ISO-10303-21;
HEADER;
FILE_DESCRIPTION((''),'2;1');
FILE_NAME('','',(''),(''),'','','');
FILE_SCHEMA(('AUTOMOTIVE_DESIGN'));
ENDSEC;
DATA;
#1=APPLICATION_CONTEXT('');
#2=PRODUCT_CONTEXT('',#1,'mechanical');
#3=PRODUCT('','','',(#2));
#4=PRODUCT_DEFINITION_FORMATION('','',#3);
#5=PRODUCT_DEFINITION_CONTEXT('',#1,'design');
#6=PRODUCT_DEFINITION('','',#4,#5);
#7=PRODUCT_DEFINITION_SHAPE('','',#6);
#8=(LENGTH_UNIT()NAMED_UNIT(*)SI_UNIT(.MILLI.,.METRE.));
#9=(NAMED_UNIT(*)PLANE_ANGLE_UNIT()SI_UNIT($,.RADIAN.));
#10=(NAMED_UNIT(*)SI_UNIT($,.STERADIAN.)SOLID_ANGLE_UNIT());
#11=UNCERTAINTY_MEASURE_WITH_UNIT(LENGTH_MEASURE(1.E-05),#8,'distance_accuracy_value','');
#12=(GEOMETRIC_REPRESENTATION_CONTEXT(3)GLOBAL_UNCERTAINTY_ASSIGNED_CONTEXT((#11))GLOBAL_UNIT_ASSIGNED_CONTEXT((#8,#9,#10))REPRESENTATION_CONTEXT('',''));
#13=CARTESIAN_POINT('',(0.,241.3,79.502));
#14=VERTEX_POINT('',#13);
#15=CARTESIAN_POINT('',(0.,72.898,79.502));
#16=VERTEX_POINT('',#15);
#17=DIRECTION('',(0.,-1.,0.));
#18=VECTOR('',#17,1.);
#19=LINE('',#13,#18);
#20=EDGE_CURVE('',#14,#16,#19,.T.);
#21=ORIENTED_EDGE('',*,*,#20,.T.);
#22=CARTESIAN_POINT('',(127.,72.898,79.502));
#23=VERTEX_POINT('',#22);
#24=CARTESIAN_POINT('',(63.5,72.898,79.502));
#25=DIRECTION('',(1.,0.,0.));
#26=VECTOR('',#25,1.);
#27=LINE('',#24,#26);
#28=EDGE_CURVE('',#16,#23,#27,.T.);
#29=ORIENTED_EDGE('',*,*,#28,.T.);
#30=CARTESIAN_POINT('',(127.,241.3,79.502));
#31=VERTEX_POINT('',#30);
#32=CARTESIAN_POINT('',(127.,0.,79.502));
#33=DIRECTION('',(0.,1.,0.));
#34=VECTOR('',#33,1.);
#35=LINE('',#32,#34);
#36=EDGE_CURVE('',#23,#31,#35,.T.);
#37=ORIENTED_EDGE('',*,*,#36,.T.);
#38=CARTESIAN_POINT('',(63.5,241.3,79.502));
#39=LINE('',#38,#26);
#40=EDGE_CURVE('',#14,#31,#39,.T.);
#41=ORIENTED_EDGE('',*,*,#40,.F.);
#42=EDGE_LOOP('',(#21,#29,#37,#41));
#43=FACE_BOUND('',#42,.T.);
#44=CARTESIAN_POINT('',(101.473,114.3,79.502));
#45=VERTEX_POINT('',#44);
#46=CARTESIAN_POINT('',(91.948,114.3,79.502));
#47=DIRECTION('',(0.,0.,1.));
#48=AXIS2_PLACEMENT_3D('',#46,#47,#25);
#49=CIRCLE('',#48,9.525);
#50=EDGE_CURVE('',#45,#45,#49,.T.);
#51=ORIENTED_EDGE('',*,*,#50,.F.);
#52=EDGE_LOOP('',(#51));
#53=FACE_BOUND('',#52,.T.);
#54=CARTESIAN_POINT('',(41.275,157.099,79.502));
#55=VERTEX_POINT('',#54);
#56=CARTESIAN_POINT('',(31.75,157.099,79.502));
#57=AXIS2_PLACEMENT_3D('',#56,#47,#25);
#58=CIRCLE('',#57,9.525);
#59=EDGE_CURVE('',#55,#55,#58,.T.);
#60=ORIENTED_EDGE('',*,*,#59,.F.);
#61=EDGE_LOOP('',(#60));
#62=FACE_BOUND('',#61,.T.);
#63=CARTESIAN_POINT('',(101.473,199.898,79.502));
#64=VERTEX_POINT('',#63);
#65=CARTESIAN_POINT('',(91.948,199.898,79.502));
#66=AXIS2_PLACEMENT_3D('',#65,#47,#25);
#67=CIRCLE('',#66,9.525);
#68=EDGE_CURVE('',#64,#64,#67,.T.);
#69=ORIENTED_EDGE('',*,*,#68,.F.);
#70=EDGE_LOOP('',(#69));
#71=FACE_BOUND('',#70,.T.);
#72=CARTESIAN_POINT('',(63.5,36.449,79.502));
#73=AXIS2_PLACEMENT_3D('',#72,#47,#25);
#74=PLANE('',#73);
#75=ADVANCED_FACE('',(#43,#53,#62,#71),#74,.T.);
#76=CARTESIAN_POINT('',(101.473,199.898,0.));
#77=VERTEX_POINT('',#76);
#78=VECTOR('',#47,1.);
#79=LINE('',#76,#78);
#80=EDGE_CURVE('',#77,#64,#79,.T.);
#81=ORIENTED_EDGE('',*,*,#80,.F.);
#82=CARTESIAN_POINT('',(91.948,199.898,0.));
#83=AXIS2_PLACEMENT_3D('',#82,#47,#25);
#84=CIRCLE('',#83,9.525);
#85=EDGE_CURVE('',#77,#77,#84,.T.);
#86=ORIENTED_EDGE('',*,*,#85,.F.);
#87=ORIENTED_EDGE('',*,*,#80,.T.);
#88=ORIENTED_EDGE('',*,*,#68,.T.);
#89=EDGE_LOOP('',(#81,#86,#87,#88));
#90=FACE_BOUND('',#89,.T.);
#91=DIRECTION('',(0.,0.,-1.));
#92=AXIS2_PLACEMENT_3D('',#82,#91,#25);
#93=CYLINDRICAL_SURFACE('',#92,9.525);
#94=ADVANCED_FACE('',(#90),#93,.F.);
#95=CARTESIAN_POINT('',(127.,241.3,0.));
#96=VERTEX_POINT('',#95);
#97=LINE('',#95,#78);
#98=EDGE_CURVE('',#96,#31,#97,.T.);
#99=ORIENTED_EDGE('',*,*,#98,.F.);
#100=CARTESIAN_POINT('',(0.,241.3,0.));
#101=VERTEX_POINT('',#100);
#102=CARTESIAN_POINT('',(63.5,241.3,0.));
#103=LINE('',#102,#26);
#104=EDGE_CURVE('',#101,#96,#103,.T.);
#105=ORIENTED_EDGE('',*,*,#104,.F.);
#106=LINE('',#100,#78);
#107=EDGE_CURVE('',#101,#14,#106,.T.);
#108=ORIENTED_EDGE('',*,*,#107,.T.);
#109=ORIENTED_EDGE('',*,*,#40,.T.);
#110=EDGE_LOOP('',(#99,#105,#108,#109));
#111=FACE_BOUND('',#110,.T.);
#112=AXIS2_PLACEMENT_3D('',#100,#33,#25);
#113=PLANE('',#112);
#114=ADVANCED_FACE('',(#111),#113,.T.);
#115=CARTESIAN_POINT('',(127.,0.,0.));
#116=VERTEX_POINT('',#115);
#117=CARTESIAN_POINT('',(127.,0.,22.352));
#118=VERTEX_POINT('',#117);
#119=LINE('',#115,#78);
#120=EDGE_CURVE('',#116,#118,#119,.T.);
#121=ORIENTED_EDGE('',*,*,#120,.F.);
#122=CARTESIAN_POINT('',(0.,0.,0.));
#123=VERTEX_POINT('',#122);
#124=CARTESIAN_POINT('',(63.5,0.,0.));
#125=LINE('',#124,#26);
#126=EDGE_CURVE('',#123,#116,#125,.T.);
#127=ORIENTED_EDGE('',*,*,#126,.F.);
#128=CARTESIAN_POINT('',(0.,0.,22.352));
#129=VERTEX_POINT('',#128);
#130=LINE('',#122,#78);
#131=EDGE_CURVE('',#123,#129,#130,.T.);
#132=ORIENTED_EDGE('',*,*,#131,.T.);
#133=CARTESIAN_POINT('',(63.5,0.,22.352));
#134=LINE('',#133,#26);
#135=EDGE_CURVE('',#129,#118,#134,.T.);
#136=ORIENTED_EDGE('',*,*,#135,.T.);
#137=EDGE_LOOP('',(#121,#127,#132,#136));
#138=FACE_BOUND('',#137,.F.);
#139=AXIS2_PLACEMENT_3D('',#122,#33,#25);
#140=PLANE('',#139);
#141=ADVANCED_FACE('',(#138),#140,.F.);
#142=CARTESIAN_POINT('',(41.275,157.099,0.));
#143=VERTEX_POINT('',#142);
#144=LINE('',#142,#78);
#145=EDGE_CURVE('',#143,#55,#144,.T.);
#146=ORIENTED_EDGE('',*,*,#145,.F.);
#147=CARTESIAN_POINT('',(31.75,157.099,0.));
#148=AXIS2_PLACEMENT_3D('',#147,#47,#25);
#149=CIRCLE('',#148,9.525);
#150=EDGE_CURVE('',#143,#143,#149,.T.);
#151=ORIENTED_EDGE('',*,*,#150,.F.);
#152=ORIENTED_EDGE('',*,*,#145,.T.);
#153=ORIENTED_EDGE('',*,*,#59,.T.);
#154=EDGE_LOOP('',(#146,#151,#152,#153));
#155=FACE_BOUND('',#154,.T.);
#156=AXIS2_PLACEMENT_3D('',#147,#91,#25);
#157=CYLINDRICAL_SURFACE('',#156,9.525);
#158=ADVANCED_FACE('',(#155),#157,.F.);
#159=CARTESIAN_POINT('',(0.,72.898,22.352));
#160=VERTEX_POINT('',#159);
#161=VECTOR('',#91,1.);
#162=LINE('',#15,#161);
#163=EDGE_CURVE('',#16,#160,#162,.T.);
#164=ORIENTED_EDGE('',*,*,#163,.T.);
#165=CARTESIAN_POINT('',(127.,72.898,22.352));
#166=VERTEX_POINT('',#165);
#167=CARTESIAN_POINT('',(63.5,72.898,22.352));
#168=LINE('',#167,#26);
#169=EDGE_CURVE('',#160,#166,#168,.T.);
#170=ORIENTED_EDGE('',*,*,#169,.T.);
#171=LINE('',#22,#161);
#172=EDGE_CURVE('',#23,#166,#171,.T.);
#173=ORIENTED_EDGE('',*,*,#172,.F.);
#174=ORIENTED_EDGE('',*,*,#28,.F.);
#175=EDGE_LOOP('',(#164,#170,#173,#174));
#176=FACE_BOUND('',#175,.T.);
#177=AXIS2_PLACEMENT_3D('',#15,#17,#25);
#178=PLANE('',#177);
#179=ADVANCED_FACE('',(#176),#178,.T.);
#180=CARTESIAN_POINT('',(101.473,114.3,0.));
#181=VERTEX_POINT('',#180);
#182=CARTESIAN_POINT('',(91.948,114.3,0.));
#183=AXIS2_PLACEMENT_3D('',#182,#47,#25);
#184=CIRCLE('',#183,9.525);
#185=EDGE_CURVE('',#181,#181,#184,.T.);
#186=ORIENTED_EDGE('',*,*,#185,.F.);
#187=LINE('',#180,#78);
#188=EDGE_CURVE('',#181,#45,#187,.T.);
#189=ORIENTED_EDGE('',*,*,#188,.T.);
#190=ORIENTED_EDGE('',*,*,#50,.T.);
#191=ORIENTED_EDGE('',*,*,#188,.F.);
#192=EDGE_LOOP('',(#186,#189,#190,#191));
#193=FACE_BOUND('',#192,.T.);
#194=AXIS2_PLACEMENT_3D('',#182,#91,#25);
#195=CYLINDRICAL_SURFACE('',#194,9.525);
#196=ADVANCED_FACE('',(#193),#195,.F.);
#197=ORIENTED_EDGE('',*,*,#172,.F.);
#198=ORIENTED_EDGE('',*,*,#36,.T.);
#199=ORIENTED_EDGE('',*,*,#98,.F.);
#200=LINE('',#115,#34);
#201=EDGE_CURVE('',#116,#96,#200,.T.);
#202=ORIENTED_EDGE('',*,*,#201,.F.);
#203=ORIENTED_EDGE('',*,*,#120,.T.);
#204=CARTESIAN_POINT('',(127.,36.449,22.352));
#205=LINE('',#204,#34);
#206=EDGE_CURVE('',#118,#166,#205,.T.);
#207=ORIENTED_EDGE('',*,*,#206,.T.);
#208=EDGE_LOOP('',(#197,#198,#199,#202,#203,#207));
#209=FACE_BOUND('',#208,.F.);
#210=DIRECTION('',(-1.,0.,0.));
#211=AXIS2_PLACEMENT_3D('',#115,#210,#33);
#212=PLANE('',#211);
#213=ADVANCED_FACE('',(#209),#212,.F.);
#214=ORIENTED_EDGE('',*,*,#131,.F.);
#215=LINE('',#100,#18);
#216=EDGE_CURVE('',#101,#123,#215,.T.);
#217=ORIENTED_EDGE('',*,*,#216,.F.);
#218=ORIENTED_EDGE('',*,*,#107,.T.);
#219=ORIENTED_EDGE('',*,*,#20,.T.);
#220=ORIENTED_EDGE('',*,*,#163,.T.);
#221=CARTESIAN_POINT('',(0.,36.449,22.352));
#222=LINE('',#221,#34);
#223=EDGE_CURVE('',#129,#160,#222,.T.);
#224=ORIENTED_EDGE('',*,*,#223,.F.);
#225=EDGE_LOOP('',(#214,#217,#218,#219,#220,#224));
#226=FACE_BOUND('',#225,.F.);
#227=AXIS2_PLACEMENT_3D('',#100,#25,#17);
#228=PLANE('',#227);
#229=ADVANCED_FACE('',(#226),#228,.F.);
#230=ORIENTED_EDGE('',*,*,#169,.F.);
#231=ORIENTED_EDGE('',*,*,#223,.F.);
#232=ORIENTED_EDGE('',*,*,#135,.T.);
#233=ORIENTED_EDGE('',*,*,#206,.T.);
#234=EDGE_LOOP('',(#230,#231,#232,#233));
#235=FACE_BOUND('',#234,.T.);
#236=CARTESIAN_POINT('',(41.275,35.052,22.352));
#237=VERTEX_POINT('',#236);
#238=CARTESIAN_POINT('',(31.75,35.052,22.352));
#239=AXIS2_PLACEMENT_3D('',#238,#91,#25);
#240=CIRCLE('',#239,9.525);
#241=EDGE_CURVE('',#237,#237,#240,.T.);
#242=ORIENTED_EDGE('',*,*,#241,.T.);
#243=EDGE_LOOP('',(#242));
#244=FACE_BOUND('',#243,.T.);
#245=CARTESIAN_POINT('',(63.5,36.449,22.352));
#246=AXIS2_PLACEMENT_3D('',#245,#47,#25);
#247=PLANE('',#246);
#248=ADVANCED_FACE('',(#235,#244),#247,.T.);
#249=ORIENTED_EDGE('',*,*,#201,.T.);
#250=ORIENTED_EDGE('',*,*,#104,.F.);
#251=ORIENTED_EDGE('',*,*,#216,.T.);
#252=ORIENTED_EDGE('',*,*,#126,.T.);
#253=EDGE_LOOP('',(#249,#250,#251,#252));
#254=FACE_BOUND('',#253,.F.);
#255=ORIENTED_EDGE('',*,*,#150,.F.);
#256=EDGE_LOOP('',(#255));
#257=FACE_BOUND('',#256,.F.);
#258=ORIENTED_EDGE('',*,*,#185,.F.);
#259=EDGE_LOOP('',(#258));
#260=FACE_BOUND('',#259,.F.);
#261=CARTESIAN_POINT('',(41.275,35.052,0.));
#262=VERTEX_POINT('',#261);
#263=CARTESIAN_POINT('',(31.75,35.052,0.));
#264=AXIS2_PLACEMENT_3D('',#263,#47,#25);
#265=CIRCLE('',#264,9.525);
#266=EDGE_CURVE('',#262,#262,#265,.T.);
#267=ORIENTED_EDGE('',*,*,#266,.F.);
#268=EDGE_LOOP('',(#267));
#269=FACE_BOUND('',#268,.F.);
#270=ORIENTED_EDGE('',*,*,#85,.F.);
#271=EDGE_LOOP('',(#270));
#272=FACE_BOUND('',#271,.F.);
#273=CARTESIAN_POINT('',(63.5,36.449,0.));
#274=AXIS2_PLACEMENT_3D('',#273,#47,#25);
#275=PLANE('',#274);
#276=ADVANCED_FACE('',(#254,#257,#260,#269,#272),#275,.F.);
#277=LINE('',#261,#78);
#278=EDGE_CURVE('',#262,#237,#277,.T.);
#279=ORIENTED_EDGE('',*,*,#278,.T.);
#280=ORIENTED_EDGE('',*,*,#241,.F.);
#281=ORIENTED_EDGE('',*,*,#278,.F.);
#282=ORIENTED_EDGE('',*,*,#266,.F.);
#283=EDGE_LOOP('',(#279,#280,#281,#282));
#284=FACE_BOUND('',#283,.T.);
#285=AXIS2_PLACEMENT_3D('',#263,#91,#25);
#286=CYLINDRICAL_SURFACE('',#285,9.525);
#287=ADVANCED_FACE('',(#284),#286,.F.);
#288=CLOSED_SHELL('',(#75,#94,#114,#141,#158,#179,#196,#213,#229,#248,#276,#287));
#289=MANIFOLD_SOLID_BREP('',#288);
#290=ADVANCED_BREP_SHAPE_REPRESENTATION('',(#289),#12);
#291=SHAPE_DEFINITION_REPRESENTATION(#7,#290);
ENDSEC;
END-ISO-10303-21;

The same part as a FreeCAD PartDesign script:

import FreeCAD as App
import Part
import Sketcher
Q = App.Units.Quantity

doc = App.newDocument("Part")
body = doc.addObject("PartDesign::Body", "Body")

# Sketch on XY plane
sketch1 = body.newObject("Sketcher::SketchObject", "Sketch")
sketch1.AttachmentSupport = (doc.getObject("XY_Plane"), [""])
sketch1.MapMode = "FlatFace"
sketch1.addGeometry([
    Part.LineSegment(App.Vector(0, 0, 0), App.Vector(127, 0, 0)),  # 0
    Part.LineSegment(App.Vector(127, 0, 0), App.Vector(127, 241, 0)),  # 1
    Part.LineSegment(App.Vector(127, 241, 0), App.Vector(0, 241, 0)),  # 2
    Part.LineSegment(App.Vector(0, 241, 0), App.Vector(0, 0, 0)),  # 3
    Part.Circle(App.Vector(32, 35, 0), App.Vector(0, 0, 1), 10),  # 4
    Part.Circle(App.Vector(92, 114, 0), App.Vector(0, 0, 1), 10),  # 5
    Part.Circle(App.Vector(32, 157, 0), App.Vector(0, 0, 1), 10),  # 6
    Part.Circle(App.Vector(92, 200, 0), App.Vector(0, 0, 1), 10),  # 7
], False)
sketch1.addConstraint([
    Sketcher.Constraint("Coincident", 0, 2, 1, 1),
    Sketcher.Constraint("Coincident", 1, 2, 2, 1),
    Sketcher.Constraint("Coincident", 2, 2, 3, 1),
    Sketcher.Constraint("Coincident", 3, 2, 0, 1),
    Sketcher.Constraint("Horizontal", 0),
    Sketcher.Constraint("Vertical", 1),
    Sketcher.Constraint("Horizontal", 2),
    Sketcher.Constraint("Vertical", 3),
    Sketcher.Constraint("Coincident", 3, 2, -1, 1),
    Sketcher.Constraint("Equal", 4, 5),
    Sketcher.Constraint("Equal", 5, 6),
    Sketcher.Constraint("Equal", 6, 7),
    Sketcher.Constraint("Vertical", 4, 3, 6, 3),
    Sketcher.Constraint("Vertical", 5, 3, 7, 3),
    Sketcher.Constraint("Diameter", 4, Q("0.75 in")),
    Sketcher.Constraint("DistanceX", 0, 1, 0, 2, Q("5 in")),
    Sketcher.Constraint("DistanceY", 1, 1, 1, 2, Q("9.5 in")),
    Sketcher.Constraint("DistanceY", 5, 3, 1, 2, Q("5 in")),
    Sketcher.Constraint("DistanceX", -1, 1, 4, 3, Q("1.25 in")),
    Sketcher.Constraint("DistanceY", -1, 1, 4, 3, Q("1.38 in")),
    Sketcher.Constraint("DistanceX", -1, 1, 5, 3, Q("3.62 in")),
    Sketcher.Constraint("DistanceY", -1, 1, 7, 3, Q("7.87 in")),
    Sketcher.Constraint("DistanceY", -1, 1, 6, 3, Q("6.185 in")),
])
pad1 = body.newObject("PartDesign::Pad", "Pad")
pad1.Profile = sketch1
pad1.Length = Q("3.13 in")

# Sketch on XY plane
sketch2 = body.newObject("Sketcher::SketchObject", "Sketch001")
sketch2.AttachmentSupport = (doc.getObject("XY_Plane"), [""])
sketch2.MapMode = "FlatFace"
sketch2.AttachmentOffset = App.Placement(App.Vector(0, 0, 3.13 * 25.4), App.Rotation())
sketch2.addGeometry([
    Part.LineSegment(App.Vector(0, 73, 0), App.Vector(0, 0, 0)),
    Part.LineSegment(App.Vector(0, 0, 0), App.Vector(127, 0, 0)),
    Part.LineSegment(App.Vector(127, 0, 0), App.Vector(127, 73, 0)),
    Part.LineSegment(App.Vector(127, 73, 0), App.Vector(0, 73, 0)),
], False)
sketch2.addConstraint([
    Sketcher.Constraint("Coincident", 0, 2, 1, 1),
    Sketcher.Constraint("Coincident", 1, 2, 2, 1),
    Sketcher.Constraint("Coincident", 2, 2, 3, 1),
    Sketcher.Constraint("Coincident", 3, 2, 0, 1),
    Sketcher.Constraint("Vertical", 0),
    Sketcher.Constraint("Horizontal", 1),
    Sketcher.Constraint("Vertical", 2),
    Sketcher.Constraint("Horizontal", 3),
    Sketcher.Constraint("Coincident", 0, 2, -1, 1),
    Sketcher.Constraint("DistanceX", 1, 1, 1, 2, Q("5 in")),
    Sketcher.Constraint("DistanceY", 0, 2, 0, 1, Q("2.87 in")),
])
pocket1 = body.newObject("PartDesign::Pocket", "Pocket")
pocket1.Profile = sketch2
pocket1.Length = Q("2.25 in")

doc.recompute()
